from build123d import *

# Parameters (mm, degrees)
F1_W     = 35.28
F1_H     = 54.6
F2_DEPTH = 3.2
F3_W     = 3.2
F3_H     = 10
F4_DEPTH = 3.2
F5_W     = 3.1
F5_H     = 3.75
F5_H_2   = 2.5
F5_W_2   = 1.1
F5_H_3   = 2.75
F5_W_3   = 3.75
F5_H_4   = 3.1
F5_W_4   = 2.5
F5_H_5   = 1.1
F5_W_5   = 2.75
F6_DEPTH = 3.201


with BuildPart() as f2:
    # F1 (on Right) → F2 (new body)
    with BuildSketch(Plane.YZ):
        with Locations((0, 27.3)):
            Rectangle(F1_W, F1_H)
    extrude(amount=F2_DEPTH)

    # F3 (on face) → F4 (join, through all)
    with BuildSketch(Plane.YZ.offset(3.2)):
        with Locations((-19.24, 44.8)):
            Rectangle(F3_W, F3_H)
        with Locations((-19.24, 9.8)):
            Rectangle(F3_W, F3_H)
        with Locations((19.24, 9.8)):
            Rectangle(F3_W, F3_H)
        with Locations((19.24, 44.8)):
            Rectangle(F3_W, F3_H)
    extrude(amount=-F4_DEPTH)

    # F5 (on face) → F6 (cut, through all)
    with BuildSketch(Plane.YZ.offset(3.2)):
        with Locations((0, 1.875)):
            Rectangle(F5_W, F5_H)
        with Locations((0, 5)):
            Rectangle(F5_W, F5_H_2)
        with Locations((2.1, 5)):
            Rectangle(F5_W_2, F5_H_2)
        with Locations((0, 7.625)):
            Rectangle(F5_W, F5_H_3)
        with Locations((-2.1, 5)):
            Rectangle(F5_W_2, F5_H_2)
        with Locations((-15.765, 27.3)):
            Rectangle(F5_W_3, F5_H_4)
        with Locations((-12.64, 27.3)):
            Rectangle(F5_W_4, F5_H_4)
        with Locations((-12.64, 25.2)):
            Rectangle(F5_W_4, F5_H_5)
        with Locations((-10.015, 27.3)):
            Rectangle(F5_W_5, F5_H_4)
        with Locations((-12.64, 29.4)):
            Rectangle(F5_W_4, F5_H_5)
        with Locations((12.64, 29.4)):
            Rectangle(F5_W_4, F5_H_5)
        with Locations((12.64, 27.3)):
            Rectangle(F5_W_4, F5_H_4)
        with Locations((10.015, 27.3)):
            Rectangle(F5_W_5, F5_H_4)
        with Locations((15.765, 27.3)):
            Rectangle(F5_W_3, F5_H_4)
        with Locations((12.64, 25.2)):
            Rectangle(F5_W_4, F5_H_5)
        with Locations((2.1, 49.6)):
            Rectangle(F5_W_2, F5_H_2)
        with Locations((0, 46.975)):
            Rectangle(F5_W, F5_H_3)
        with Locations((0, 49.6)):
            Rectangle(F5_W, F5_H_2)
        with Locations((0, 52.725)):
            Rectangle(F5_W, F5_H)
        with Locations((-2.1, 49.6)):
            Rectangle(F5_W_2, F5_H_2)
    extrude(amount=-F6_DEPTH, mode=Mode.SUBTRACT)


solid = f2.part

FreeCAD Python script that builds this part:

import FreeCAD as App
import Part
import Sketcher
Q = App.Units.Quantity

doc = App.newDocument("Part")
params = doc.addObject("Spreadsheet::Sheet", "Params")
for row, (alias, value) in enumerate([
    ("sketch1_height", "54.6 mm"),
    ("sketch1_width", "35.28 mm"),
    ("pad1_length", "3.2 mm"),
    ("sketch2_height", "10 mm"),
    ("sketch2_width", "3.2 mm"),
    ("sketch3_width", "3.1 mm"),
    ("sketch3_width2", "1.1 mm"),
    ("sketch3_width3", "2.5 mm"),
    ("sketch3_width4", "3.75 mm"),
], start=1):
    params.set(f"A{row}", alias)
    params.set(f"B{row}", "=" + value)
    params.setAlias(f"B{row}", alias)

body = doc.addObject("PartDesign::Body", "Body")

# Sketch on YZ plane
sketch1 = body.newObject("Sketcher::SketchObject", "Sketch")
sketch1.AttachmentSupport = (doc.getObject("YZ_Plane"), [""])
sketch1.MapMode = "FlatFace"
sketch1.addGeometry([
    Part.LineSegment(App.Vector(-18, 55, 0), App.Vector(-18, 0, 0)),
    Part.LineSegment(App.Vector(-18, 0, 0), App.Vector(18, 0, 0)),
    Part.LineSegment(App.Vector(18, 0, 0), App.Vector(18, 55, 0)),
    Part.LineSegment(App.Vector(18, 55, 0), App.Vector(-18, 55, 0)),
], False)
sketch1.addConstraint([
    Sketcher.Constraint("Coincident", 0, 2, 1, 1),
    Sketcher.Constraint("Coincident", 1, 2, 2, 1),
    Sketcher.Constraint("Coincident", 2, 2, 3, 1),
    Sketcher.Constraint("Coincident", 3, 2, 0, 1),
    Sketcher.Constraint("Vertical", 0),
    Sketcher.Constraint("Horizontal", 1),
    Sketcher.Constraint("Vertical", 2),
    Sketcher.Constraint("Horizontal", 3),
    Sketcher.Constraint("Symmetric", 0, 2, 1, 2, -1, 1),
    Sketcher.Constraint("DistanceY", 0, 2, 0, 1, Q("54.6 mm")),
    Sketcher.Constraint("DistanceX", 1, 1, 1, 2, Q("35.28 mm")),
])
sketch1.setExpression("Constraints[9]", "Params.sketch1_height")
sketch1.setExpression("Constraints[10]", "Params.sketch1_width")
pad1 = body.newObject("PartDesign::Pad", "Pad")
pad1.Profile = sketch1
pad1.setExpression("Length", "Params.pad1_length")

# Sketch on YZ plane
sketch2 = body.newObject("Sketcher::SketchObject", "Sketch001")
sketch2.AttachmentSupport = (doc.getObject("YZ_Plane"), [""])
sketch2.MapMode = "FlatFace"
sketch2.AttachmentOffset = App.Placement(App.Vector(0, 0, 3.2), App.Rotation())
sketch2.addGeometry([
    Part.LineSegment(App.Vector(-20.8, 49.8, 0), App.Vector(-20.8, 39.8, 0)),  # 0
    Part.LineSegment(App.Vector(-20.8, 39.8, 0), App.Vector(-17.6, 39.8, 0)),  # 1
    Part.LineSegment(App.Vector(-17.6, 39.8, 0), App.Vector(-17.6, 49.8, 0)),  # 2
    Part.LineSegment(App.Vector(-17.6, 49.8, 0), App.Vector(-20.8, 49.8, 0)),  # 3
    Part.LineSegment(App.Vector(-20.8, 14.8, 0), App.Vector(-20.8, 4.8, 0)),  # 4
    Part.LineSegment(App.Vector(-20.8, 4.8, 0), App.Vector(-17.6, 4.8, 0)),  # 5
    Part.LineSegment(App.Vector(-17.6, 4.8, 0), App.Vector(-17.6, 14.8, 0)),  # 6
    Part.LineSegment(App.Vector(-17.6, 14.8, 0), App.Vector(-20.8, 14.8, 0)),  # 7
    Part.LineSegment(App.Vector(17.6, 14.8, 0), App.Vector(17.6, 4.8, 0)),  # 8
    Part.LineSegment(App.Vector(17.6, 4.8, 0), App.Vector(20.8, 4.8, 0)),  # 9
    Part.LineSegment(App.Vector(20.8, 4.8, 0), App.Vector(20.8, 14.8, 0)),  # 10
    Part.LineSegment(App.Vector(20.8, 14.8, 0), App.Vector(17.6, 14.8, 0)),  # 11
    Part.LineSegment(App.Vector(17.6, 49.8, 0), App.Vector(17.6, 39.8, 0)),  # 12
    Part.LineSegment(App.Vector(17.6, 39.8, 0), App.Vector(20.8, 39.8, 0)),  # 13
    Part.LineSegment(App.Vector(20.8, 39.8, 0), App.Vector(20.8, 49.8, 0)),  # 14
    Part.LineSegment(App.Vector(20.8, 49.8, 0), App.Vector(17.6, 49.8, 0)),  # 15
], False)
sketch2.addConstraint([
    Sketcher.Constraint("Coincident", 0, 2, 1, 1),
    Sketcher.Constraint("Coincident", 1, 2, 2, 1),
    Sketcher.Constraint("Coincident", 2, 2, 3, 1),
    Sketcher.Constraint("Coincident", 3, 2, 0, 1),
    Sketcher.Constraint("Coincident", 4, 2, 5, 1),
    Sketcher.Constraint("Coincident", 5, 2, 6, 1),
    Sketcher.Constraint("Coincident", 6, 2, 7, 1),
    Sketcher.Constraint("Coincident", 7, 2, 4, 1),
    Sketcher.Constraint("Coincident", 8, 2, 9, 1),
    Sketcher.Constraint("Coincident", 9, 2, 10, 1),
    Sketcher.Constraint("Coincident", 10, 2, 11, 1),
    Sketcher.Constraint("Coincident", 11, 2, 8, 1),
    Sketcher.Constraint("Coincident", 12, 2, 13, 1),
    Sketcher.Constraint("Coincident", 13, 2, 14, 1),
    Sketcher.Constraint("Coincident", 14, 2, 15, 1),
    Sketcher.Constraint("Coincident", 15, 2, 12, 1),
    Sketcher.Constraint("Vertical", 0),
    Sketcher.Constraint("Horizontal", 1),
    Sketcher.Constraint("Vertical", 2),
    Sketcher.Constraint("Horizontal", 3),
    Sketcher.Constraint("Vertical", 4),
    Sketcher.Constraint("Horizontal", 5),
    Sketcher.Constraint("Vertical", 6),
    Sketcher.Constraint("Horizontal", 7),
    Sketcher.Constraint("Vertical", 8),
    Sketcher.Constraint("Horizontal", 9),
    Sketcher.Constraint("Vertical", 10),
    Sketcher.Constraint("Horizontal", 11),
    Sketcher.Constraint("Vertical", 12),
    Sketcher.Constraint("Horizontal", 13),
    Sketcher.Constraint("Vertical", 14),
    Sketcher.Constraint("Horizontal", 15),
    Sketcher.Constraint("Symmetric", 5, 2, 8, 2, -2),
    Sketcher.Constraint("Symmetric", 7, 2, 10, 2, -2),
    Sketcher.Constraint("Symmetric", 1, 2, 12, 2, -2),
    Sketcher.Constraint("Symmetric", 3, 2, 14, 2, -2),
    Sketcher.Constraint("Vertical", 3, 2, 4, 2),
    Sketcher.Constraint("Vertical", 2, 2, 5, 2),
    Sketcher.Constraint("Equal", 2, 4),
    Sketcher.Constraint("DistanceY", 0, 2, 0, 1, Q("10 mm")),
    Sketcher.Constraint("DistanceX", 1, 1, 1, 2, Q("3.2 mm")),
    Sketcher.Constraint("DistanceY", 4, 2, 0, 2, Q("35 mm")),
    Sketcher.Constraint("DistanceY", -1, 1, 0, 2, Q("39.8 mm")),
    Sketcher.Constraint("DistanceX", 0, 2, -1, 1, Q("20.84 mm")),
])
sketch2.setExpression("Constraints[39]", "Params.sketch2_height")
sketch2.setExpression("Constraints[40]", "Params.sketch2_width")
pad2 = body.newObject("PartDesign::Pad", "Pad001")
pad2.Profile = sketch2
pad2.Type = "UpToLast"
pad2.Reversed = True

# Sketch on YZ plane
sketch3 = body.newObject("Sketcher::SketchObject", "Sketch002")
sketch3.AttachmentSupport = (doc.getObject("YZ_Plane"), [""])
sketch3.MapMode = "FlatFace"
sketch3.AttachmentOffset = App.Placement(App.Vector(0, 0, 3.2), App.Rotation())
sketch3.addGeometry([
    Part.LineSegment(App.Vector(-1.6, 0, 0), App.Vector(1.6, 0, 0)),  # 0
    Part.LineSegment(App.Vector(1.6, 0, 0), App.Vector(1.6, 3.8, 0)),  # 1
    Part.LineSegment(App.Vector(1.6, 3.8, 0), App.Vector(2.6, 3.8, 0)),  # 2
    Part.LineSegment(App.Vector(2.6, 3.8, 0), App.Vector(2.6, 6.2, 0)),  # 3
    Part.LineSegment(App.Vector(2.6, 6.2, 0), App.Vector(1.6, 6.2, 0)),  # 4
    Part.LineSegment(App.Vector(1.6, 6.2, 0), App.Vector(1.6, 9, 0)),  # 5
    Part.LineSegment(App.Vector(1.6, 9, 0), App.Vector(-1.6, 9, 0)),  # 6
    Part.LineSegment(App.Vector(-1.6, 9, 0), App.Vector(-1.6, 6.2, 0)),  # 7
    Part.LineSegment(App.Vector(-1.6, 6.2, 0), App.Vector(-2.6, 6.2, 0)),  # 8
    Part.LineSegment(App.Vector(-2.6, 6.2, 0), App.Vector(-2.6, 3.8, 0)),  # 9
    Part.LineSegment(App.Vector(-2.6, 3.8, 0), App.Vector(-1.6, 3.8, 0)),  # 10
    Part.LineSegment(App.Vector(-1.6, 3.8, 0), App.Vector(-1.6, 0, 0)),  # 11
    Part.LineSegment(App.Vector(-17.6, 28.9, 0), App.Vector(-17.6, 25.8, 0)),  # 12
    Part.LineSegment(App.Vector(-17.6, 25.8, 0), App.Vector(-13.9, 25.8, 0)),  # 13
    Part.LineSegment(App.Vector(-13.9, 25.8, 0), App.Vector(-13.9, 24.6, 0)),  # 14
    Part.LineSegment(App.Vector(-13.9, 24.6, 0), App.Vector(-11.4, 24.6, 0)),  # 15
    Part.LineSegment(App.Vector(-11.4, 24.6, 0), App.Vector(-11.4, 25.8, 0)),  # 16
    Part.LineSegment(App.Vector(-11.4, 25.8, 0), App.Vector(-8.6, 25.8, 0)),  # 17
    Part.LineSegment(App.Vector(-8.6, 25.8, 0), App.Vector(-8.6, 28.9, 0)),  # 18
    Part.LineSegment(App.Vector(-8.6, 28.9, 0), App.Vector(-11.4, 28.9, 0)),  # 19
    Part.LineSegment(App.Vector(-11.4, 28.9, 0), App.Vector(-11.4, 29.9, 0)),  # 20
    Part.LineSegment(App.Vector(-11.4, 29.9, 0), App.Vector(-13.9, 29.9, 0)),  # 21
    Part.LineSegment(App.Vector(-13.9, 29.9, 0), App.Vector(-13.9, 28.9, 0)),  # 22
    Part.LineSegment(App.Vector(-13.9, 28.9, 0), App.Vector(-17.6, 28.9, 0)),  # 23
    Part.LineSegment(App.Vector(11.4, 29.9, 0), App.Vector(11.4, 28.9, 0)),  # 24
    Part.LineSegment(App.Vector(11.4, 28.9, 0), App.Vector(8.6, 28.9, 0)),  # 25
    Part.LineSegment(App.Vector(8.6, 28.9, 0), App.Vector(8.6, 25.8, 0)),  # 26
    Part.LineSegment(App.Vector(8.6, 25.8, 0), App.Vector(11.4, 25.8, 0)),  # 27
    Part.LineSegment(App.Vector(11.4, 25.8, 0), App.Vector(11.4, 24.6, 0)),  # 28
    Part.LineSegment(App.Vector(11.4, 24.6, 0), App.Vector(13.9, 24.6, 0)),  # 29
    Part.LineSegment(App.Vector(13.9, 24.6, 0), App.Vector(13.9, 25.8, 0)),  # 30
    Part.LineSegment(App.Vector(13.9, 25.8, 0), App.Vector(17.6, 25.8, 0)),  # 31
    Part.LineSegment(App.Vector(17.6, 25.8, 0), App.Vector(17.6, 28.9, 0)),  # 32
    Part.LineSegment(App.Vector(17.6, 28.9, 0), App.Vector(13.9, 28.9, 0)),  # 33
    Part.LineSegment(App.Vector(13.9, 28.9, 0), App.Vector(13.9, 29.9, 0)),  # 34
    Part.LineSegment(App.Vector(13.9, 29.9, 0), App.Vector(11.4, 29.9, 0)),  # 35
    Part.LineSegment(App.Vector(1.6, 48.4, 0), App.Vector(2.6, 48.4, 0)),  # 36
    Part.LineSegment(App.Vector(2.6, 48.4, 0), App.Vector(2.6, 50.9, 0)),  # 37
    Part.LineSegment(App.Vector(2.6, 50.9, 0), App.Vector(1.6, 50.9, 0)),  # 38
    Part.LineSegment(App.Vector(1.6, 50.9, 0), App.Vector(1.6, 54.6, 0)),  # 39
    Part.LineSegment(App.Vector(1.6, 54.6, 0), App.Vector(-1.6, 54.6, 0)),  # 40
    Part.LineSegment(App.Vector(-1.6, 54.6, 0), App.Vector(-1.6, 50.9, 0)),  # 41
    Part.LineSegment(App.Vector(-1.6, 50.9, 0), App.Vector(-2.6, 50.9, 0)),  # 42
    Part.LineSegment(App.Vector(-2.6, 50.9, 0), App.Vector(-2.6, 48.4, 0)),  # 43
    Part.LineSegment(App.Vector(-2.6, 48.4, 0), App.Vector(-1.6, 48.4, 0)),  # 44
    Part.LineSegment(App.Vector(-1.6, 48.4, 0), App.Vector(-1.6, 45.6, 0)),  # 45
    Part.LineSegment(App.Vector(-1.6, 45.6, 0), App.Vector(1.6, 45.6, 0)),  # 46
    Part.LineSegment(App.Vector(1.6, 45.6, 0), App.Vector(1.6, 48.4, 0)),  # 47
], False)
sketch3.addConstraint([
    Sketcher.Constraint("Coincident", 0, 2, 1, 1),
    Sketcher.Constraint("Coincident", 1, 2, 2, 1),
    Sketcher.Constraint("Coincident", 2, 2, 3, 1),
    Sketcher.Constraint("Coincident", 3, 2, 4, 1),
    Sketcher.Constraint("Coincident", 4, 2, 5, 1),
    Sketcher.Constraint("Coincident", 5, 2, 6, 1),
    Sketcher.Constraint("Coincident", 6, 2, 7, 1),
    Sketcher.Constraint("Coincident", 7, 2, 8, 1),
    Sketcher.Constraint("Coincident", 8, 2, 9, 1),
    Sketcher.Constraint("Coincident", 9, 2, 10, 1),
    Sketcher.Constraint("Coincident", 10, 2, 11, 1),
    Sketcher.Constraint("Coincident", 11, 2, 0, 1),
    Sketcher.Constraint("Coincident", 12, 2, 13, 1),
    Sketcher.Constraint("Coincident", 13, 2, 14, 1),
    Sketcher.Constraint("Coincident", 14, 2, 15, 1),
    Sketcher.Constraint("Coincident", 15, 2, 16, 1),
    Sketcher.Constraint("Coincident", 16, 2, 17, 1),
    Sketcher.Constraint("Coincident", 17, 2, 18, 1),
    Sketcher.Constraint("Coincident", 18, 2, 19, 1),
    Sketcher.Constraint("Coincident", 19, 2, 20, 1),
    Sketcher.Constraint("Coincident", 20, 2, 21, 1),
    Sketcher.Constraint("Coincident", 21, 2, 22, 1),
    Sketcher.Constraint("Coincident", 22, 2, 23, 1),
    Sketcher.Constraint("Coincident", 23, 2, 12, 1),
    Sketcher.Constraint("Coincident", 24, 2, 25, 1),
    Sketcher.Constraint("Coincident", 25, 2, 26, 1),
    Sketcher.Constraint("Coincident", 26, 2, 27, 1),
    Sketcher.Constraint("Coincident", 27, 2, 28, 1),
    Sketcher.Constraint("Coincident", 28, 2, 29, 1),
    Sketcher.Constraint("Coincident", 29, 2, 30, 1),
    Sketcher.Constraint("Coincident", 30, 2, 31, 1),
    Sketcher.Constraint("Coincident", 31, 2, 32, 1),
    Sketcher.Constraint("Coincident", 32, 2, 33, 1),
    Sketcher.Constraint("Coincident", 33, 2, 34, 1),
    Sketcher.Constraint("Coincident", 34, 2, 35, 1),
    Sketcher.Constraint("Coincident", 35, 2, 24, 1),
    Sketcher.Constraint("Coincident", 36, 2, 37, 1),
    Sketcher.Constraint("Coincident", 37, 2, 38, 1),
    Sketcher.Constraint("Coincident", 38, 2, 39, 1),
    Sketcher.Constraint("Coincident", 39, 2, 40, 1),
    Sketcher.Constraint("Coincident", 40, 2, 41, 1),
    Sketcher.Constraint("Coincident", 41, 2, 42, 1),
    Sketcher.Constraint("Coincident", 42, 2, 43, 1),
    Sketcher.Constraint("Coincident", 43, 2, 44, 1),
    Sketcher.Constraint("Coincident", 44, 2, 45, 1),
    Sketcher.Constraint("Coincident", 45, 2, 46, 1),
    Sketcher.Constraint("Coincident", 46, 2, 47, 1),
    Sketcher.Constraint("Coincident", 47, 2, 36, 1),
    Sketcher.Constraint("Horizontal", 0),
    Sketcher.Constraint("Vertical", 1),
    Sketcher.Constraint("Horizontal", 2),
    Sketcher.Constraint("Vertical", 3),
    Sketcher.Constraint("Horizontal", 4),
    Sketcher.Constraint("Vertical", 5),
    Sketcher.Constraint("Horizontal", 6),
    Sketcher.Constraint("Vertical", 7),
    Sketcher.Constraint("Horizontal", 8),
    Sketcher.Constraint("Vertical", 9),
    Sketcher.Constraint("Horizontal", 10),
    Sketcher.Constraint("Vertical", 11),
    Sketcher.Constraint("Vertical", 12),
    Sketcher.Constraint("Horizontal", 13),
    Sketcher.Constraint("Vertical", 14),
    Sketcher.Constraint("Horizontal", 15),
    Sketcher.Constraint("Vertical", 16),
    Sketcher.Constraint("Horizontal", 17),
    Sketcher.Constraint("Vertical", 18),
    Sketcher.Constraint("Horizontal", 19),
    Sketcher.Constraint("Vertical", 20),
    Sketcher.Constraint("Horizontal", 21),
    Sketcher.Constraint("Vertical", 22),
    Sketcher.Constraint("Horizontal", 23),
    Sketcher.Constraint("Vertical", 24),
    Sketcher.Constraint("Horizontal", 25),
    Sketcher.Constraint("Vertical", 26),
    Sketcher.Constraint("Horizontal", 27),
    Sketcher.Constraint("Vertical", 28),
    Sketcher.Constraint("Horizontal", 29),
    Sketcher.Constraint("Vertical", 30),
    Sketcher.Constraint("Horizontal", 31),
    Sketcher.Constraint("Vertical", 32),
    Sketcher.Constraint("Horizontal", 33),
    Sketcher.Constraint("Vertical", 34),
    Sketcher.Constraint("Horizontal", 35),
    Sketcher.Constraint("Horizontal", 36),
    Sketcher.Constraint("Vertical", 37),
    Sketcher.Constraint("Horizontal", 38),
    Sketcher.Constraint("Vertical", 39),
    Sketcher.Constraint("Horizontal", 40),
    Sketcher.Constraint("Vertical", 41),
    Sketcher.Constraint("Horizontal", 42),
    Sketcher.Constraint("Vertical", 43),
    Sketcher.Constraint("Horizontal", 44),
    Sketcher.Constraint("Vertical", 45),
    Sketcher.Constraint("Horizontal", 46),
    Sketcher.Constraint("Vertical", 47),
    Sketcher.Constraint("Symmetric", 0, 2, 11, 2, -1, 1),
    Sketcher.Constraint("Symmetric", 4, 2, 7, 2, -2),
    Sketcher.Constraint("Symmetric", 2, 2, 9, 2, -2),
    Sketcher.Constraint("Symmetric", 19, 2, 24, 2, -2),
    Sketcher.Constraint("Symmetric", 17, 2, 26, 2, -2),
    Sketcher.Constraint("Symmetric", 15, 2, 28, 2, -2),
    Sketcher.Constraint("Symmetric", 13, 2, 30, 2, -2),
    Sketcher.Constraint("Symmetric", 23, 2, 32, 2, -2),
    Sketcher.Constraint("Symmetric", 21, 2, 34, 2, -2),
    Sketcher.Constraint("Symmetric", 38, 2, 41, 2, -2),
    Sketcher.Constraint("Symmetric", 36, 2, 43, 2, -2),
    Sketcher.Constraint("Horizontal", 13, 2, 16, 2),
    Sketcher.Constraint("Horizontal", 19, 2, 22, 2),
    Sketcher.Constraint("Vertical", 1, 2, 4, 2),
    Sketcher.Constraint("Vertical", 16, 2, 19, 2),
    Sketcher.Constraint("Vertical", 14, 2, 21, 2),
    Sketcher.Constraint("Vertical", 3, 2, 36, 2),
    Sketcher.Constraint("Vertical", 5, 2, 38, 2),
    Sketcher.Constraint("Vertical", 41, 2, 44, 2),
    Sketcher.Constraint("Vertical", 39, 2, 46, 2),
    Sketcher.Constraint("Equal", 33, 1),
    Sketcher.Constraint("Equal", 35, 3),
    Sketcher.Constraint("Equal", 27, 5),
    Sketcher.Constraint("Equal", 46, 12),
    Sketcher.Constraint("Equal", 44, 14),
    Sketcher.Constraint("Equal", 16, 20),
    Sketcher.Constraint("Equal", 9, 37),
    Sketcher.Constraint("Equal", 11, 39),
    Sketcher.Constraint("Equal", 7, 45),
    Sketcher.Constraint("DistanceX", 0, 1, 0, 2, Q("3.1 mm")),
    Sketcher.Constraint("DistanceX", 2, 1, 2, 2, Q("1.1 mm")),
    Sketcher.Constraint("DistanceX", 15, 1, 15, 2, Q("2.5 mm")),
    Sketcher.Constraint("DistanceY", -1, 1, 5, 2, Q("9 mm")),
    Sketcher.Constraint("DistanceY", 9, 2, 12, 2, Q("22 mm")),
    Sketcher.Constraint("DistanceY", 25, 2, 37, 2, Q("22 mm")),
    Sketcher.Constraint("DistanceX", 13, 1, 13, 2, Q("3.75 mm")),
    Sketcher.Constraint("DistanceX", 12, 2, -1, 1, Q("17.64 mm")),
])
sketch3.setExpression("Constraints[125]", "Params.sketch3_width")
sketch3.setExpression("Constraints[126]", "Params.sketch3_width2")
sketch3.setExpression("Constraints[127]", "Params.sketch3_width3")
sketch3.setExpression("Constraints[131]", "Params.sketch3_width4")
pocket1 = body.newObject("PartDesign::Pocket", "Pocket")
pocket1.Profile = sketch3
pocket1.Type = "ThroughAll"

doc.recompute()
